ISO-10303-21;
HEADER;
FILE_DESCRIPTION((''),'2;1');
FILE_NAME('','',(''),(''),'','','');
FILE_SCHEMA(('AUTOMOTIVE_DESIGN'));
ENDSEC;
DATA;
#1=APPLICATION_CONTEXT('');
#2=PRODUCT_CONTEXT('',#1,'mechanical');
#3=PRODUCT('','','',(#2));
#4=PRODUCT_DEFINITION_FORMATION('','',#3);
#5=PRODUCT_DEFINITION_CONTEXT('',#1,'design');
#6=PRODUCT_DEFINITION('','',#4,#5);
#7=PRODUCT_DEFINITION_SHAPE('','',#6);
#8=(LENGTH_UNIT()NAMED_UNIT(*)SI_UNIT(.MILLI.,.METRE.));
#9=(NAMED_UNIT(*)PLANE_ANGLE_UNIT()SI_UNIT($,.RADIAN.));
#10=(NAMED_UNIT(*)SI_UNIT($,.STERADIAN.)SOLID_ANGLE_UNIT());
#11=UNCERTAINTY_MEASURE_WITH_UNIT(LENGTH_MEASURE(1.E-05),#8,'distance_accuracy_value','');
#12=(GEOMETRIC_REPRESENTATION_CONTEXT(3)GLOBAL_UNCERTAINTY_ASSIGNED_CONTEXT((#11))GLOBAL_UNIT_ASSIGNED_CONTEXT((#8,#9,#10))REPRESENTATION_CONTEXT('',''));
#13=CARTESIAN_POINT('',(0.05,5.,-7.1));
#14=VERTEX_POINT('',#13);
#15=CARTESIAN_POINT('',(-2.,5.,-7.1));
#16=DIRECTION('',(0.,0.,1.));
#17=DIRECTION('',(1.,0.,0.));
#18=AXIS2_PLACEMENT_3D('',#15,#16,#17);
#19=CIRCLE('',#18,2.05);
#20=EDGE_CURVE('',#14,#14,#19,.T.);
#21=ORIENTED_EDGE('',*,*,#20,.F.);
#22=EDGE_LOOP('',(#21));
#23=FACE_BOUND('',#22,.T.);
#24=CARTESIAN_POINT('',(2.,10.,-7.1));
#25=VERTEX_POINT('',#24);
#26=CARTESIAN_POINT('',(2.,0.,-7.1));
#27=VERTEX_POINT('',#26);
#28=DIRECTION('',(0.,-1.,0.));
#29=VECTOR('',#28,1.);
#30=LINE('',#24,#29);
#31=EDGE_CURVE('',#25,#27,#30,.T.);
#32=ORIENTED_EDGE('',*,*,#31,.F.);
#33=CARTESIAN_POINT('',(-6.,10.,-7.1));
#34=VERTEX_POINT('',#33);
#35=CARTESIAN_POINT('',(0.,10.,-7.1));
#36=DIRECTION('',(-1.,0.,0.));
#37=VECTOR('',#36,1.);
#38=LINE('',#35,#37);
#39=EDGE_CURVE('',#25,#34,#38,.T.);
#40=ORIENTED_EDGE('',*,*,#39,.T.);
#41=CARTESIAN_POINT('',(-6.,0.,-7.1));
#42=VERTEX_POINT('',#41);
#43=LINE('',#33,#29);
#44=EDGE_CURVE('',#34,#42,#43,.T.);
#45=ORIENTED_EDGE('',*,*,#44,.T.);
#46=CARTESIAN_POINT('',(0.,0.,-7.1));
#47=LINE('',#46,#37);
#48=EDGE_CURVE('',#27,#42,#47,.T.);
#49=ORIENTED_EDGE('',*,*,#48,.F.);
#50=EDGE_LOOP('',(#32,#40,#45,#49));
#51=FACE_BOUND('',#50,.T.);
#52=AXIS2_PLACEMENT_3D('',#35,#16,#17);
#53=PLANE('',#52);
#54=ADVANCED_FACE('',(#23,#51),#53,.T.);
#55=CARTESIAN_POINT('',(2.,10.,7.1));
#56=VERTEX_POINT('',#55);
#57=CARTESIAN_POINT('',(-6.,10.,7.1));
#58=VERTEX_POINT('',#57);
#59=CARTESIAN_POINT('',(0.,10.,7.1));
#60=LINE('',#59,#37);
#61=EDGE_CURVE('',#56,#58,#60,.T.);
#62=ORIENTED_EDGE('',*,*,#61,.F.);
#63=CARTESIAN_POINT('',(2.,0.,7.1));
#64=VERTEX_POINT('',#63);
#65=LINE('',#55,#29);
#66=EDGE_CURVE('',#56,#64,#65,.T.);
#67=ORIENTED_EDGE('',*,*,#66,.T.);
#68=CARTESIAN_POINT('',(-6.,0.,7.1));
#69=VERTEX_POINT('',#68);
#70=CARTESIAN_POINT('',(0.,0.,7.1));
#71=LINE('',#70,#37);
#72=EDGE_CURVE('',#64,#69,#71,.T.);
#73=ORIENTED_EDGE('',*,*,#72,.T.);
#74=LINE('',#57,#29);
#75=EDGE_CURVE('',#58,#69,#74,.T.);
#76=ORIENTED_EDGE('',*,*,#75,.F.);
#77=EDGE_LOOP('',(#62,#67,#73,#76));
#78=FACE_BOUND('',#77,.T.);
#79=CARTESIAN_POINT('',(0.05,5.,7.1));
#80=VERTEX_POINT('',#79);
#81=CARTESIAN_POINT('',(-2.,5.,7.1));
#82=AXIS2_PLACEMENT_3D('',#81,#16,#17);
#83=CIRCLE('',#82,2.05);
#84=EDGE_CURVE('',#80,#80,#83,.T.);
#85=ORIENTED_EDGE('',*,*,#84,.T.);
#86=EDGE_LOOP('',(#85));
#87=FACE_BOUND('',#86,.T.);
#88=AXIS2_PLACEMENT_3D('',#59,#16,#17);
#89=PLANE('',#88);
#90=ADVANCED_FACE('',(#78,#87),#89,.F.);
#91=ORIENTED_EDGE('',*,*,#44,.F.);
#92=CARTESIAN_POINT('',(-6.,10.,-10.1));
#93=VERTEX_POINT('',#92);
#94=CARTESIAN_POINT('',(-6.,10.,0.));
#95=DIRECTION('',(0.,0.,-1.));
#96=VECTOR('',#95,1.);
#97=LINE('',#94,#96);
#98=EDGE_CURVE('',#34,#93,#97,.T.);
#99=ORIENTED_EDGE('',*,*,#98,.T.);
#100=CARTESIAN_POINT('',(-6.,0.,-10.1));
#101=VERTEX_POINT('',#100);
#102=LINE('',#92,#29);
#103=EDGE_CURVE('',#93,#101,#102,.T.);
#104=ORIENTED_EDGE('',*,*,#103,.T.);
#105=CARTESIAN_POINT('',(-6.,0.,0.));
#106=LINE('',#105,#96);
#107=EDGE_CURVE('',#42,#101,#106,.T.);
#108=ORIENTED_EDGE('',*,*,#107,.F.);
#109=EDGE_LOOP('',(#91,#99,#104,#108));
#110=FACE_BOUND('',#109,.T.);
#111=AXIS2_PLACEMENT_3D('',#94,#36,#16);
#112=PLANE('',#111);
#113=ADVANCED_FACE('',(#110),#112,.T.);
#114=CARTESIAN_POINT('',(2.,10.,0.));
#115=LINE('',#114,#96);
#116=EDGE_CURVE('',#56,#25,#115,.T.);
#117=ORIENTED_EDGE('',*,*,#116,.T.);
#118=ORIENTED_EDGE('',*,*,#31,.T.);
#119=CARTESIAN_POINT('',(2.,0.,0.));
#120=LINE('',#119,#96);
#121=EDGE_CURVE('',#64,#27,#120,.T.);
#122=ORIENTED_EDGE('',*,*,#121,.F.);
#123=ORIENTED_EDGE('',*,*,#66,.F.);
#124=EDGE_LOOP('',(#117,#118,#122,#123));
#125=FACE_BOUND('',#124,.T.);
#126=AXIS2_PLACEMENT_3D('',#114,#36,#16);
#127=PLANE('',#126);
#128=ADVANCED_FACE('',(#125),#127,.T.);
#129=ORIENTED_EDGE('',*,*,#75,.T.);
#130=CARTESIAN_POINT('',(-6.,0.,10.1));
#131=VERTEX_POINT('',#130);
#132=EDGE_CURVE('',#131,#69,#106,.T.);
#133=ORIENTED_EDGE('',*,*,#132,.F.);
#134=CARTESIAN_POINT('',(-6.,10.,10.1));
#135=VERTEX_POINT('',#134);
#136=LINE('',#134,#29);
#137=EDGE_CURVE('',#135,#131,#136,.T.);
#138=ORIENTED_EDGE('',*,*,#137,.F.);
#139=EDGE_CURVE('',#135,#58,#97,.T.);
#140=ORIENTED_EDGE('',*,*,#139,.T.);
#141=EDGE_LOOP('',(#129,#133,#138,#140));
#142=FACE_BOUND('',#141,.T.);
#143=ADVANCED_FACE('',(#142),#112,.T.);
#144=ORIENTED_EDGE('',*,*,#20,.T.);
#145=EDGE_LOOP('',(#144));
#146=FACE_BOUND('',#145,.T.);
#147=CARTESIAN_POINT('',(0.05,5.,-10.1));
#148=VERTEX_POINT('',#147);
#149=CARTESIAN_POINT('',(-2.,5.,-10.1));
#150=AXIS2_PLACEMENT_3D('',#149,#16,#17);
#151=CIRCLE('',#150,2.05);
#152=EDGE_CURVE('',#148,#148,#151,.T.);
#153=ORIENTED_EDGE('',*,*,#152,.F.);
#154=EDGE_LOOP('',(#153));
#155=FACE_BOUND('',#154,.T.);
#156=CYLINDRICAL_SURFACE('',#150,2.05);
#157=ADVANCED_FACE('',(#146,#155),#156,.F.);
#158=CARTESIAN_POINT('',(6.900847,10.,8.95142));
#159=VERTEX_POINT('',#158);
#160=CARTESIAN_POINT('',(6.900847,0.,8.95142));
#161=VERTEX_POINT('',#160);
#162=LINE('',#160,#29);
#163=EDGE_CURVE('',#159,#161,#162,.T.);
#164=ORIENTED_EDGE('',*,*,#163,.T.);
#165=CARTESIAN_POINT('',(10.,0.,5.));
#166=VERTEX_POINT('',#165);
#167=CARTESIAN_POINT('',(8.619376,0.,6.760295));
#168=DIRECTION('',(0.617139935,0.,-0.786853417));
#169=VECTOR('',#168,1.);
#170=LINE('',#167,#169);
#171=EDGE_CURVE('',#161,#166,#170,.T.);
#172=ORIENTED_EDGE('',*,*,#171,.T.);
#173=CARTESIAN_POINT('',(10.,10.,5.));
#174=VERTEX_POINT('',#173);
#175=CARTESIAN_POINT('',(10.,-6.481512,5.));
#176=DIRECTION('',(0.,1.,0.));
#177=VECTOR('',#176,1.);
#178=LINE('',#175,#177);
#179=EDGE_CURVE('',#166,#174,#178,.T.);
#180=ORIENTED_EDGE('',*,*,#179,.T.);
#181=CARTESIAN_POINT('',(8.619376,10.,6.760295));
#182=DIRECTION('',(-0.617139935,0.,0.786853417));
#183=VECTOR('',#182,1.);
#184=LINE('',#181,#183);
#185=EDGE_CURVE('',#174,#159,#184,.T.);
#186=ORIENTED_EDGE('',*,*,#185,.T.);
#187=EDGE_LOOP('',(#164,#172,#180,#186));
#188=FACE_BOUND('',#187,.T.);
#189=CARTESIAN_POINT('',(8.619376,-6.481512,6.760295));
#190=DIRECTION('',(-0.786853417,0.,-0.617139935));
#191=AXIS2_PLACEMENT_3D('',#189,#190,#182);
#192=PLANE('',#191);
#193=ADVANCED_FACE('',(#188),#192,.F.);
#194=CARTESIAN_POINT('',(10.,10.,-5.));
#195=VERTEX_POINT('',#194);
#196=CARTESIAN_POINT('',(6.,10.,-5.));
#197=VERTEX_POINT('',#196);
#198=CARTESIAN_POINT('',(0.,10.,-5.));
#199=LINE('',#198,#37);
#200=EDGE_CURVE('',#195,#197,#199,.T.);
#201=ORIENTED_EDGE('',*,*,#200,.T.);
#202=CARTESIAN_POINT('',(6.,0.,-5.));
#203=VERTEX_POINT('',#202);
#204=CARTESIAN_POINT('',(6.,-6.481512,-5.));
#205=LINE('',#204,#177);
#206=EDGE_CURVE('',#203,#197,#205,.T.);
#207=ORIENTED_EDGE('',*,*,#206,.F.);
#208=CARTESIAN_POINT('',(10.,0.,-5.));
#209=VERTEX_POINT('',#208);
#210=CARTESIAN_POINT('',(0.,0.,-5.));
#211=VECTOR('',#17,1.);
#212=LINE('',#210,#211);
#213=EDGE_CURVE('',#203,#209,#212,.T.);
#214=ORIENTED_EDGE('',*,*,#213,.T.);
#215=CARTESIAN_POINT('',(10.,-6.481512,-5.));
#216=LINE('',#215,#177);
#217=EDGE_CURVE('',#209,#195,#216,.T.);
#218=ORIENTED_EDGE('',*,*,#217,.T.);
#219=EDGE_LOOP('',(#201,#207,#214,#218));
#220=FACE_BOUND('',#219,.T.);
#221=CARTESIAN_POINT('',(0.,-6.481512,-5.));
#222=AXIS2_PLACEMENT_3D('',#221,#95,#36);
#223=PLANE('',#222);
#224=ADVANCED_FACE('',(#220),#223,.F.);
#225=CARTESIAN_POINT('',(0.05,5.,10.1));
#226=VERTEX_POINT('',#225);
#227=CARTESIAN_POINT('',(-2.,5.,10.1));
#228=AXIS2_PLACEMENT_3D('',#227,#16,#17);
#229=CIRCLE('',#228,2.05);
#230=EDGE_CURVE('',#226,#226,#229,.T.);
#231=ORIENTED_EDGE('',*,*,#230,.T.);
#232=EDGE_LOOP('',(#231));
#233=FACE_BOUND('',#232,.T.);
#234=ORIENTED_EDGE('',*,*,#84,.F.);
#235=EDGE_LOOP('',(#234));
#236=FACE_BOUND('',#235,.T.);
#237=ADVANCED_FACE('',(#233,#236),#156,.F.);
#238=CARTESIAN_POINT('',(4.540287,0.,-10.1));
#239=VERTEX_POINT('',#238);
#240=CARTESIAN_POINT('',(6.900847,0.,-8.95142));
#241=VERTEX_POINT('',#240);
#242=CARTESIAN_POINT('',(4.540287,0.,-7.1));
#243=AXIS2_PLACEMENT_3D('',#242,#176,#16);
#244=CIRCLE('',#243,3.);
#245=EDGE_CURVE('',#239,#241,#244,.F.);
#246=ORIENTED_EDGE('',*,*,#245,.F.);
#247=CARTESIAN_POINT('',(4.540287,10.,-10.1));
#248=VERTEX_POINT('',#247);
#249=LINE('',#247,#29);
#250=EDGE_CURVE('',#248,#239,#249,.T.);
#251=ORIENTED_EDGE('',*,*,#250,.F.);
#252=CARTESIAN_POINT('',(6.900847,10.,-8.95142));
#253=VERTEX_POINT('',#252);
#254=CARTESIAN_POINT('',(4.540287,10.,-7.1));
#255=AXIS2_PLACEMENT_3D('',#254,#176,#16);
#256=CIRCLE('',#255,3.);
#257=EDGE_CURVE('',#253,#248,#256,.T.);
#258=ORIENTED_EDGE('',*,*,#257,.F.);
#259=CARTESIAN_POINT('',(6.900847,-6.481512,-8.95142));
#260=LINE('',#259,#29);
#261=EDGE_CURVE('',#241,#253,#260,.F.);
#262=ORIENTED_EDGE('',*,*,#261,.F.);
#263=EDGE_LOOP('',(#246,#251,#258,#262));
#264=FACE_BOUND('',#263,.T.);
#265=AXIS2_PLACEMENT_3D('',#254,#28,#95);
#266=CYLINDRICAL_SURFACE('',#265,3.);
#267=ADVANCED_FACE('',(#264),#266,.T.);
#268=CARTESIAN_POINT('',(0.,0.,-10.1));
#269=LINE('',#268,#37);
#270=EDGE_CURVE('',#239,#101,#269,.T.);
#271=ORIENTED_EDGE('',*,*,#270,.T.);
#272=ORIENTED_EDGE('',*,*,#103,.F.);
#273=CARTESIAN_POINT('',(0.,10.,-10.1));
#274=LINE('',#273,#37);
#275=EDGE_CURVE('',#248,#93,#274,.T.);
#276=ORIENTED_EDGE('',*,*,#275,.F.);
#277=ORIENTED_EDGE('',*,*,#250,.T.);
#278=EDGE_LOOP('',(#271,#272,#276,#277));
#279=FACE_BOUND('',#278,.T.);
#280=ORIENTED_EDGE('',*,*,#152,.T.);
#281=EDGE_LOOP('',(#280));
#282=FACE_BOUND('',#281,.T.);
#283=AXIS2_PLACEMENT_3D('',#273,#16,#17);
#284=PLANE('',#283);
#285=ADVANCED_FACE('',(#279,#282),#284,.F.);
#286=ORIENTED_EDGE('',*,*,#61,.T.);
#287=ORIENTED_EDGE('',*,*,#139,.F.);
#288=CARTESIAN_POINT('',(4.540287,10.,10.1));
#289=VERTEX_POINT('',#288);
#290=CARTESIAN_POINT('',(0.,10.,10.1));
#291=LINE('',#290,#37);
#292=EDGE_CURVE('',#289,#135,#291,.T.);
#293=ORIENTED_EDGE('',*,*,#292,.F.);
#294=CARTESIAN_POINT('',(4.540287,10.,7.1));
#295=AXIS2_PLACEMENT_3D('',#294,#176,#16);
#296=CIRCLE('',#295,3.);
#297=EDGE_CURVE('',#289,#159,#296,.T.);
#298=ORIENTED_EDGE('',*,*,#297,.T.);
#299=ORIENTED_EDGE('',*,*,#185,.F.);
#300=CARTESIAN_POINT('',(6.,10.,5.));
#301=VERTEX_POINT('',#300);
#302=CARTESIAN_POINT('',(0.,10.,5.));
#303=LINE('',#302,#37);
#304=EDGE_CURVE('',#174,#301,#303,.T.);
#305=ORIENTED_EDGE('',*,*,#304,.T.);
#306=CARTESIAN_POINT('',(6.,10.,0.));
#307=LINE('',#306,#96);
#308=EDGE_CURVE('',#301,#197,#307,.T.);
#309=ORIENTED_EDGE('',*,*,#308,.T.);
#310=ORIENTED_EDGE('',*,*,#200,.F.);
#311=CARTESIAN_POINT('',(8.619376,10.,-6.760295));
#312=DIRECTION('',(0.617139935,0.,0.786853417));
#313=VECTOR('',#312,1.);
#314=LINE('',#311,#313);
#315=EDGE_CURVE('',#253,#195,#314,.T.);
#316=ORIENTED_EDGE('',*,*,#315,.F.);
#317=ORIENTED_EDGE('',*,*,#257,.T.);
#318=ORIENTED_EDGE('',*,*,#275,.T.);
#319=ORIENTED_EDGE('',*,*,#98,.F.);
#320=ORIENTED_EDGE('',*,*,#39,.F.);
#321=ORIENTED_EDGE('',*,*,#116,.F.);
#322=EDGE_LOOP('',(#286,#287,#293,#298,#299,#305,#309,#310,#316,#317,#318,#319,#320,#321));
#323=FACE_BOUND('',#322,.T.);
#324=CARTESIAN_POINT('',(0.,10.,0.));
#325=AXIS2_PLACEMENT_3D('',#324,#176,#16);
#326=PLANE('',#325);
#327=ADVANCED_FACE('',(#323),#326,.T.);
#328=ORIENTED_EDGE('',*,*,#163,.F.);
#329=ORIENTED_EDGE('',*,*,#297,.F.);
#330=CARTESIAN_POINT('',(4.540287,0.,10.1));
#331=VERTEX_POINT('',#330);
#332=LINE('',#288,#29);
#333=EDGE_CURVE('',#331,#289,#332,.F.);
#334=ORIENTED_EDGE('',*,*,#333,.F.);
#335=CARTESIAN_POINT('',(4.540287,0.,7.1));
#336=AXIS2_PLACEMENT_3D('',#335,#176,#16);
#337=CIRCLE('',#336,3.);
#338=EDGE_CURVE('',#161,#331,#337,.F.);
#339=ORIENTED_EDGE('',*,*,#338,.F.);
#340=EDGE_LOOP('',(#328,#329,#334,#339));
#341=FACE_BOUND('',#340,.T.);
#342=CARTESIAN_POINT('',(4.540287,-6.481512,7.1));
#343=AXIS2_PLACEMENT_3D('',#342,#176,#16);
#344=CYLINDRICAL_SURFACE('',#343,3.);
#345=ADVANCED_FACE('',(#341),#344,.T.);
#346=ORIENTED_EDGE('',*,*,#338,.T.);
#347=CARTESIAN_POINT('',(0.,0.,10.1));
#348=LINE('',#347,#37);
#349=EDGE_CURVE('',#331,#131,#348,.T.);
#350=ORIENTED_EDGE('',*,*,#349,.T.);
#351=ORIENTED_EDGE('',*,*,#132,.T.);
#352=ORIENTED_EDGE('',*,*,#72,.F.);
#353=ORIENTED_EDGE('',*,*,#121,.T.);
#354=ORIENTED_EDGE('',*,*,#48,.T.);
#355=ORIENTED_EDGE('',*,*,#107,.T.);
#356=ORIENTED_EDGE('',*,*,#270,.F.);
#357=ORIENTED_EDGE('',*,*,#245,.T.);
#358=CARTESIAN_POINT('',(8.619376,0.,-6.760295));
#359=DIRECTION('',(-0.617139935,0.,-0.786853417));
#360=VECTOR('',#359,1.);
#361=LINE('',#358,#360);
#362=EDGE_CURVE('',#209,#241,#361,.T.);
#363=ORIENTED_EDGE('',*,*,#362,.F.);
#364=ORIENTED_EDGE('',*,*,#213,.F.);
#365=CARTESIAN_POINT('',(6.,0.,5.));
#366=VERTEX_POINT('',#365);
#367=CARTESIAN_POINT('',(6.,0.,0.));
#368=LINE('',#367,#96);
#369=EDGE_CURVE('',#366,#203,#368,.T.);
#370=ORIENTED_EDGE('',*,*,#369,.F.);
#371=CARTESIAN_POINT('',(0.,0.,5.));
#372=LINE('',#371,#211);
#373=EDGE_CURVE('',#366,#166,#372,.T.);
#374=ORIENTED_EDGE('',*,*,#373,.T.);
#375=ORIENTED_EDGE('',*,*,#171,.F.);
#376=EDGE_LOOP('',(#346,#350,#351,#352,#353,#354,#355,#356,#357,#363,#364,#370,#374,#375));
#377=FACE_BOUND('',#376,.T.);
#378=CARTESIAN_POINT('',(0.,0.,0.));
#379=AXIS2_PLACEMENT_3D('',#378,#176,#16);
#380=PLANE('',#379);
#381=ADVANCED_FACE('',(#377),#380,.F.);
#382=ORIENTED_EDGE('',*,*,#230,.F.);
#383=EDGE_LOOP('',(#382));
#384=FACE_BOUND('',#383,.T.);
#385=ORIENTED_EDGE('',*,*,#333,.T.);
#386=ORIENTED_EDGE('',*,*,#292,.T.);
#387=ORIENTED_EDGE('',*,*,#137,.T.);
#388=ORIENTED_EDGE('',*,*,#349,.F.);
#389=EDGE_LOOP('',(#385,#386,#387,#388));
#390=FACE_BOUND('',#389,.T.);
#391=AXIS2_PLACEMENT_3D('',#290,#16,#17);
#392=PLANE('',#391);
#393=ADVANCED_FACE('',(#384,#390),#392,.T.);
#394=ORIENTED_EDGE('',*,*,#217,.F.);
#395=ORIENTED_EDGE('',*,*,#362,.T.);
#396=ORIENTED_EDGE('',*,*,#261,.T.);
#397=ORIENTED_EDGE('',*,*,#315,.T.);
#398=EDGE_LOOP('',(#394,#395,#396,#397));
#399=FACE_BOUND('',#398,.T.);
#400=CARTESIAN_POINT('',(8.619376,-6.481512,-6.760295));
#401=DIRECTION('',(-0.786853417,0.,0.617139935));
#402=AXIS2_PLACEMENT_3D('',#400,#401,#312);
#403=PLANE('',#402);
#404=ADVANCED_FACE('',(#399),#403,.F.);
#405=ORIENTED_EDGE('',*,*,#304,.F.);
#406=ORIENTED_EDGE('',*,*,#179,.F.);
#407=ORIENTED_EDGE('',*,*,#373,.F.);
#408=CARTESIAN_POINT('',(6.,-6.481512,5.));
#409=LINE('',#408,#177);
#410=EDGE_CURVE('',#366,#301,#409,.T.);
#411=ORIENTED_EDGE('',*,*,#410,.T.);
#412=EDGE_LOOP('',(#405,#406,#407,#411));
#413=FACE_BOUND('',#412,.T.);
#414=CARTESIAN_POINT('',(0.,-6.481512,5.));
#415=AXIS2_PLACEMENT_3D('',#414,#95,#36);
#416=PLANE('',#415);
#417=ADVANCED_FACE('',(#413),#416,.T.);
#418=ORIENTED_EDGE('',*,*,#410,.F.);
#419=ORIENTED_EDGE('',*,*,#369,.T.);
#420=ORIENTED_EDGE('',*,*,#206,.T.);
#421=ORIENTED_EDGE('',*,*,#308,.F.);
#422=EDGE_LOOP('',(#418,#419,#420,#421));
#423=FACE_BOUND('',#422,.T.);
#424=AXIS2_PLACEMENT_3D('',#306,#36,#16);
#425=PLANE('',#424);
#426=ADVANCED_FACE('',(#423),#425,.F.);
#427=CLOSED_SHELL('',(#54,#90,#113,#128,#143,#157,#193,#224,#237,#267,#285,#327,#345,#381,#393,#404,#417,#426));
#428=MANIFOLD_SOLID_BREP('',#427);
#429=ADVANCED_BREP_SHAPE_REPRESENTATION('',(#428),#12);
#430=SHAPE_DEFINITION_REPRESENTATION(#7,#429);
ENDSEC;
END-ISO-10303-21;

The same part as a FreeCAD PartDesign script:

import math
import FreeCAD as App
import Part
import Sketcher
from FreeCAD import Vector


def edges_at(feature, points):
    """Names of the edges that pass closest to the given points."""
    edges = feature.Shape.Edges
    near = lambda p: min(range(len(edges)), key=lambda i: edges[i].distToShape(Part.Vertex(*p))[0])
    return sorted({f"Edge{near(p) + 1}" for p in points})

doc = App.newDocument("Part")
body = doc.addObject("PartDesign::Body", "Body")

sketch1 = body.newObject("Sketcher::SketchObject", "Sketch")
sketch1.AttachmentSupport = (doc.getObject("XZ_Plane"), [""])
sketch1.MapMode = "FlatFace"
sketch1.addGeometry(Part.LineSegment(Vector(-6, 10.1, 0), Vector(6, 10.1, 0)), False)
sketch1.addGeometry(Part.LineSegment(Vector(6, 10.1, 0), Vector(6, -10.1, 0)), False)
sketch1.addGeometry(Part.LineSegment(Vector(6, -10.1, 0), Vector(-6, -10.1, 0)), False)
sketch1.addGeometry(Part.LineSegment(Vector(-6, -10.1, 0), Vector(-6, -7.1, 0)), False)
sketch1.addGeometry(Part.LineSegment(Vector(-6, -7.1, 0), Vector(2, -7.1, 0)), False)
sketch1.addGeometry(Part.LineSegment(Vector(2, -7.1, 0), Vector(2, 7.1, 0)), False)
sketch1.addGeometry(Part.LineSegment(Vector(2, 7.1, 0), Vector(-6, 7.1, 0)), False)
sketch1.addGeometry(Part.LineSegment(Vector(-6, 7.1, 0), Vector(-6, 10.1, 0)), False)
sketch1.addConstraint(Sketcher.Constraint("Coincident", 0, 2, 1, 1))
sketch1.addConstraint(Sketcher.Constraint("Coincident", 1, 2, 2, 1))
sketch1.addConstraint(Sketcher.Constraint("Coincident", 2, 2, 3, 1))
sketch1.addConstraint(Sketcher.Constraint("Coincident", 3, 2, 4, 1))
sketch1.addConstraint(Sketcher.Constraint("Coincident", 4, 2, 5, 1))
sketch1.addConstraint(Sketcher.Constraint("Coincident", 5, 2, 6, 1))
sketch1.addConstraint(Sketcher.Constraint("Coincident", 6, 2, 7, 1))
sketch1.addConstraint(Sketcher.Constraint("Coincident", 7, 2, 0, 1))
sketch1.addConstraint(Sketcher.Constraint("Horizontal", 0))
sketch1.addConstraint(Sketcher.Constraint("Vertical", 1))
sketch1.addConstraint(Sketcher.Constraint("Horizontal", 2))
sketch1.addConstraint(Sketcher.Constraint("Vertical", 3))
sketch1.addConstraint(Sketcher.Constraint("Horizontal", 4))
sketch1.addConstraint(Sketcher.Constraint("Vertical", 5))
sketch1.addConstraint(Sketcher.Constraint("Horizontal", 6))
sketch1.addConstraint(Sketcher.Constraint("Vertical", 7))
sketch1.addConstraint(Sketcher.Constraint("Symmetric", 0, 2, 2, 2, -1, 1))
sketch1.addConstraint(Sketcher.Constraint("Symmetric", 3, 2, 6, 2, -1))
sketch1.addConstraint(Sketcher.Constraint("DistanceX", 0, 1, 0, 2, 12.0))
sketch1.addConstraint(Sketcher.Constraint("DistanceX", 4, 1, 4, 2, 8.0))
sketch1.addConstraint(Sketcher.Constraint("DistanceY", 3, 1, 3, 2, 3.0))
sketch1.addConstraint(Sketcher.Constraint("DistanceY", 1, 2, 1, 1, 20.2))
pad1 = body.newObject("PartDesign::Pad", "Pad")
pad1.Profile = sketch1
pad1.Length = 10
pad1.Reversed = True

sketch2 = body.newObject("Sketcher::SketchObject", "Sketch001")
sketch2.AttachmentSupport = (doc.getObject("XY_Plane"), [""])
sketch2.MapMode = "FlatFace"
sketch2.AttachmentOffset = App.Placement(Vector(0, 0, -7.1), App.Rotation())
sketch2.addGeometry(Part.ArcOfCircle(Part.Circle(Vector(-2, 5, 0), Vector(0, 0, 1), 2), math.radians(129), math.radians(309)), False)
sketch2.addGeometry(Part.ArcOfCircle(Part.Circle(Vector(-2, 5, 0), Vector(0, 0, 1), 2), math.radians(-51), math.radians(0)), False)
sketch2.addGeometry(Part.ArcOfCircle(Part.Circle(Vector(-2, 5, 0), Vector(0, 0, 1), 2), math.radians(0), math.radians(129)), False)
sketch2.addConstraint(Sketcher.Constraint("Tangent", 0, 2, 1, 1))
sketch2.addConstraint(Sketcher.Constraint("Tangent", 1, 2, 2, 1))
sketch2.addConstraint(Sketcher.Constraint("Tangent", 2, 2, 0, 1))
sketch2.addConstraint(Sketcher.Constraint("Horizontal", 2, 3, 1, 2))
sketch2.addConstraint(Sketcher.Constraint("Radius", 0, 2.05))
sketch2.addConstraint(Sketcher.Constraint("DistanceX", 0, 3, -1, 1, 2.0))
sketch2.addConstraint(Sketcher.Constraint("DistanceY", -1, 1, 0, 3, 5.0))
sketch2.addConstraint(Sketcher.Constraint("DistanceY", -1, 1, 0, 2, 3.399219))
sketch2.addConstraint(Sketcher.Constraint("DistanceY", -1, 1, 2, 2, 6.600781))
pocket1 = body.newObject("PartDesign::Pocket", "Pocket")
pocket1.Profile = sketch2
pocket1.Type = "ThroughAll"
pocket1.Midplane = True

sketch3 = body.newObject("Sketcher::SketchObject", "Sketch002")
sketch3.AttachmentSupport = (doc.getObject("XZ_Plane"), [""])
sketch3.MapMode = "FlatFace"
sketch3.AttachmentOffset = App.Placement(Vector(0, 0, -10), App.Rotation())
sketch3.addGeometry(Part.LineSegment(Vector(10, -5, 0), Vector(6, -10.1, 0)), False)
sketch3.addGeometry(Part.LineSegment(Vector(6, -10.1, 0), Vector(6, -5, 0)), False)
sketch3.addGeometry(Part.LineSegment(Vector(6, -5, 0), Vector(10, -5, 0)), False)
sketch3.addGeometry(Part.LineSegment(Vector(6, 10.1, 0), Vector(10, 5, 0)), False)
sketch3.addGeometry(Part.LineSegment(Vector(10, 5, 0), Vector(6, 5, 0)), False)
sketch3.addGeometry(Part.LineSegment(Vector(6, 5, 0), Vector(6, 10.1, 0)), False)
sketch3.addConstraint(Sketcher.Constraint("Coincident", 0, 2, 1, 1))
sketch3.addConstraint(Sketcher.Constraint("Coincident", 1, 2, 2, 1))
sketch3.addConstraint(Sketcher.Constraint("Coincident", 2, 2, 0, 1))
sketch3.addConstraint(Sketcher.Constraint("Coincident", 3, 2, 4, 1))
sketch3.addConstraint(Sketcher.Constraint("Coincident", 4, 2, 5, 1))
sketch3.addConstraint(Sketcher.Constraint("Coincident", 5, 2, 3, 1))
sketch3.addConstraint(Sketcher.Constraint("Vertical", 1))
sketch3.addConstraint(Sketcher.Constraint("Horizontal", 2))
sketch3.addConstraint(Sketcher.Constraint("Horizontal", 4))
sketch3.addConstraint(Sketcher.Constraint("Vertical", 5))
sketch3.addConstraint(Sketcher.Constraint("Symmetric", 2, 2, 3, 2, -1))
sketch3.addConstraint(Sketcher.Constraint("Symmetric", 0, 2, 5, 2, -1))
sketch3.addConstraint(Sketcher.Constraint("DistanceX", 2, 1, 2, 2, 4.0))
sketch3.addConstraint(Sketcher.Constraint("DistanceY", 1, 1, 1, 2, 5.1))
sketch3.addConstraint(Sketcher.Constraint("DistanceX", -1, 1, 0, 2, 6.0))
sketch3.addConstraint(Sketcher.Constraint("DistanceY", 1, 2, -1, 1, 5.0))
pad2 = body.newObject("PartDesign::Pad", "Pad001")
pad2.Profile = sketch3
pad2.Length = 10
doc.recompute()

fillet = body.newObject("PartDesign::Fillet", "Fillet")
fillet.Base = (pad2, edges_at(pad2, [(6, 5, -10.1), (6, 5, 10.1)]))
fillet.Radius = 3

doc.recompute()
